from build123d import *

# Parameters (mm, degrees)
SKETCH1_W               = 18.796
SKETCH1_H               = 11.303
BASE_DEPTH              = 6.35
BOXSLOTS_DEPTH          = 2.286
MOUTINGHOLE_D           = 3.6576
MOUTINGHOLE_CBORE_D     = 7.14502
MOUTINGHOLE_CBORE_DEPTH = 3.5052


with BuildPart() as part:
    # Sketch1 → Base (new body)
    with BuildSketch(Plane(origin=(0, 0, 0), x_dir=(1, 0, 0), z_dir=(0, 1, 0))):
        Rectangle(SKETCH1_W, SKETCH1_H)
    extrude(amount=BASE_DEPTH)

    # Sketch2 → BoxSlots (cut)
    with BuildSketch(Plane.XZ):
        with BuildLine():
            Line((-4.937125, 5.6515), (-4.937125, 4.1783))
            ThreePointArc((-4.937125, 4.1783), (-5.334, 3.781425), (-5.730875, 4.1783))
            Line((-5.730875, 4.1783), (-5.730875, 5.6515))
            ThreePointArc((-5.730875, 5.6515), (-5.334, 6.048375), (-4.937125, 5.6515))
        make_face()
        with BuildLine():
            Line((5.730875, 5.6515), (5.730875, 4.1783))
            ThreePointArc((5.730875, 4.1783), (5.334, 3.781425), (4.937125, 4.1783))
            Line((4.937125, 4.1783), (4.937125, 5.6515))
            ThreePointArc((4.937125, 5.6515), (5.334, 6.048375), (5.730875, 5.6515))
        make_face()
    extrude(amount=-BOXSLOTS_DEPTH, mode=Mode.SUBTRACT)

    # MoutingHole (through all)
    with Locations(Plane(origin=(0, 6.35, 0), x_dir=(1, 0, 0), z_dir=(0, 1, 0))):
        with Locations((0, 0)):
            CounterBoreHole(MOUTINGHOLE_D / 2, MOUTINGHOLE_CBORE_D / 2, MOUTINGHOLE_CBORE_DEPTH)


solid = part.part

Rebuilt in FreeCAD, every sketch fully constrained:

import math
import FreeCAD as App
import Part
import Sketcher

V = App.Vector
Q = App.Units.Quantity

doc = App.newDocument("Part")
body = doc.addObject("PartDesign::Body", "Body")

# Sketch on XZ plane
sketch1 = body.newObject("Sketcher::SketchObject", "Sketch")
sketch1.AttachmentSupport = (doc.getObject("XZ_Plane"), [""])
sketch1.MapMode = "FlatFace"
sketch1.addGeometry([
    Part.LineSegment(V(-9.398, -5.6515, 0), V(-9.398, 5.6515, 0)),
    Part.LineSegment(V(-9.398, 5.6515, 0), V(9.398, 5.6515, 0)),
    Part.LineSegment(V(9.398, 5.6515, 0), V(9.398, -5.6515, 0)),
    Part.LineSegment(V(9.398, -5.6515, 0), V(-9.398, -5.6515, 0)),
], False)
sketch1.addConstraint([
    Sketcher.Constraint("Coincident", 0, 2, 1, 1),
    Sketcher.Constraint("Coincident", 1, 2, 2, 1),
    Sketcher.Constraint("Coincident", 2, 2, 3, 1),
    Sketcher.Constraint("Coincident", 3, 2, 0, 1),
    Sketcher.Constraint("Vertical", 0),
    Sketcher.Constraint("Horizontal", 1),
    Sketcher.Constraint("Vertical", 2),
    Sketcher.Constraint("Horizontal", 3),
    Sketcher.Constraint("Symmetric", 0, 2, 2, 2, -1, 1),
    Sketcher.Constraint("DistanceX", 1, 1, 1, 2, Q("0.74 in")),
    Sketcher.Constraint("DistanceY", 0, 1, 0, 2, Q("0.445 in")),
])
pad1 = body.newObject("PartDesign::Pad", "Pad")
pad1.Profile = sketch1
pad1.Length = Q("0.25 in")
pad1.Reversed = True

# Sketch on XZ plane
sketch2 = body.newObject("Sketcher::SketchObject", "Sketch001")
sketch2.AttachmentSupport = (doc.getObject("XZ_Plane"), [""])
sketch2.MapMode = "FlatFace"
sketch2.addGeometry([
    Part.LineSegment(V(-4.937125, 4.1783, 0), V(-4.937125, 5.6515, 0)),  # 0
    Part.ArcOfCircle(Part.Circle(V(-5.334, 5.6515, 0), V(0, 0, 1), 0.396875), math.radians(0), math.radians(180)),  # 1
    Part.LineSegment(V(-5.730875, 5.6515, 0), V(-5.730875, 4.1783, 0)),  # 2
    Part.ArcOfCircle(Part.Circle(V(-5.334, 4.1783, 0), V(0, 0, 1), 0.396875), math.radians(180), math.radians(360)),  # 3
    Part.LineSegment(V(5.730875, 4.1783, 0), V(5.730875, 5.6515, 0)),  # 4
    Part.ArcOfCircle(Part.Circle(V(5.334, 5.6515, 0), V(0, 0, 1), 0.396875), math.radians(0), math.radians(180)),  # 5
    Part.LineSegment(V(4.937125, 5.6515, 0), V(4.937125, 4.1783, 0)),  # 6
    Part.ArcOfCircle(Part.Circle(V(5.334, 4.1783, 0), V(0, 0, 1), 0.396875), math.radians(180), math.radians(360)),  # 7
], False)
sketch2.addConstraint([
    Sketcher.Constraint("Tangent", 0, 2, 1, 1),
    Sketcher.Constraint("Tangent", 1, 2, 2, 1),
    Sketcher.Constraint("Tangent", 2, 2, 3, 1),
    Sketcher.Constraint("Tangent", 3, 2, 0, 1),
    Sketcher.Constraint("Tangent", 4, 2, 5, 1),
    Sketcher.Constraint("Tangent", 5, 2, 6, 1),
    Sketcher.Constraint("Tangent", 6, 2, 7, 1),
    Sketcher.Constraint("Tangent", 7, 2, 4, 1),
    Sketcher.Constraint("Vertical", 0),
    Sketcher.Constraint("Vertical", 2),
    Sketcher.Constraint("Vertical", 4),
    Sketcher.Constraint("Vertical", 6),
    Sketcher.Constraint("Equal", 3, 5),
    Sketcher.Constraint("Symmetric", 1, 3, 5, 3, -2),
    Sketcher.Constraint("Horizontal", 3, 3, 7, 3),
    Sketcher.Constraint("Radius", 1, Q("0.015625 in")),
    Sketcher.Constraint("DistanceY", 0, 1, 0, 2, Q("0.058 in")),
    Sketcher.Constraint("DistanceX", 1, 3, -1, 1, Q("0.21 in")),
    Sketcher.Constraint("DistanceY", -1, 1, 1, 3, Q("0.2225 in")),
])
pocket1 = body.newObject("PartDesign::Pocket", "Pocket")
pocket1.Profile = sketch2
pocket1.Length = Q("0.09 in")

# Sketch on XZ plane
sketch3 = body.newObject("Sketcher::SketchObject", "Sketch002")
sketch3.AttachmentSupport = (doc.getObject("XZ_Plane"), [""])
sketch3.MapMode = "FlatFace"
sketch3.AttachmentOffset = App.Placement(V(0, 0, -0.25 * 25.4), App.Rotation())
sketch3.addGeometry(Part.Circle(V(0, 0, 0), V(0, 0, 1), 1.8288), False)
sketch3.addConstraint([
    Sketcher.Constraint("Coincident", 0, 3, -1, 1),
    Sketcher.Constraint("Diameter", 0, Q("0.144 in")),
])
doc.recompute()
hole = body.newObject("PartDesign::Hole", "Hole")
hole.Profile = sketch3
hole.ThreadType = "None"
hole.Diameter = Q("0.144 in")
hole.DepthType = "ThroughAll"
hole.HoleCutType = "Counterbore"
hole.HoleCutDiameter = Q("0.2813 in")
hole.HoleCutDepth = Q("0.138 in")
hole.Reversed = True

doc.recompute()
